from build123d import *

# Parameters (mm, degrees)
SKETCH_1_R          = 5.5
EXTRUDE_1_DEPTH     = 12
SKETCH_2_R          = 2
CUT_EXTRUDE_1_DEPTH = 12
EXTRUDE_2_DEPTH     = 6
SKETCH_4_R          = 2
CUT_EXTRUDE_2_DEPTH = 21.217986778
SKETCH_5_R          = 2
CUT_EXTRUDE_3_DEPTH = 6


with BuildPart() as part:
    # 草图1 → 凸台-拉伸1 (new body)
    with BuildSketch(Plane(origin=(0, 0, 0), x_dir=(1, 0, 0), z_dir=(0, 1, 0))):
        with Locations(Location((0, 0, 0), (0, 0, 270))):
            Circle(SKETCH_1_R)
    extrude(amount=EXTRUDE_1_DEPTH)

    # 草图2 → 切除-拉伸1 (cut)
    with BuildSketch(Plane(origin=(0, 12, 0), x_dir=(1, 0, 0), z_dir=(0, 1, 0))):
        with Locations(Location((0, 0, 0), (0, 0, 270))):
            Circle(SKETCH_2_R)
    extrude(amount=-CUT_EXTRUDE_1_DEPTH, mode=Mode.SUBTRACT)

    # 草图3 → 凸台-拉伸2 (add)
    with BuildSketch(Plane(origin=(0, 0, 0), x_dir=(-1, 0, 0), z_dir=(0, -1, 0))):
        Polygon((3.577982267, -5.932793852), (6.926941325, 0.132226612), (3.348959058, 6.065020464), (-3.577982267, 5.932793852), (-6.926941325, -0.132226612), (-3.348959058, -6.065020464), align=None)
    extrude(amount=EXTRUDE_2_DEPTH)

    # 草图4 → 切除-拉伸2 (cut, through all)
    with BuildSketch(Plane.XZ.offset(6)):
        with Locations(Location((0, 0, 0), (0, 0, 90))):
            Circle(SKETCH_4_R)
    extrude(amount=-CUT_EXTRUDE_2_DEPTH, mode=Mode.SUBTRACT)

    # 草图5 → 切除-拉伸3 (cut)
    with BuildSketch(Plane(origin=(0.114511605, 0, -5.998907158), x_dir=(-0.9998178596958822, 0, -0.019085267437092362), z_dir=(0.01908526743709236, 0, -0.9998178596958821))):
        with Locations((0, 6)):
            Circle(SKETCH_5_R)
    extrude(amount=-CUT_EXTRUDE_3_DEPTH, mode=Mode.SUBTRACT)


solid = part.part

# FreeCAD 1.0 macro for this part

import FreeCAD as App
import Part
import Sketcher

V = App.Vector

doc = App.newDocument("Part")
body = doc.addObject("PartDesign::Body", "Body")

sketch1 = body.newObject("Sketcher::SketchObject", "Sketch")
sketch1.AttachmentSupport = (doc.getObject("XZ_Plane"), [""])
sketch1.MapMode = "FlatFace"
sketch1.addGeometry(Part.Circle(V(0, 0, 0), V(0, 0, 1), 5.5), False)
sketch1.addConstraint([
    Sketcher.Constraint("Coincident", 0, 3, -1, 1),
    Sketcher.Constraint("Diameter", 0, 11.0),
])
pad1 = body.newObject("PartDesign::Pad", "Pad")
pad1.Profile = sketch1
pad1.Length = 12
pad1.Reversed = True

sketch2 = body.newObject("Sketcher::SketchObject", "Sketch001")
sketch2.AttachmentSupport = (doc.getObject("XZ_Plane"), [""])
sketch2.MapMode = "FlatFace"
sketch2.AttachmentOffset = App.Placement(V(0, 0, -12), App.Rotation())
sketch2.addGeometry(Part.Circle(V(0, 0, 0), V(0, 0, 1), 2), False)
sketch2.addConstraint([
    Sketcher.Constraint("Coincident", 0, 3, -1, 1),
    Sketcher.Constraint("Diameter", 0, 4.0),
])
pocket1 = body.newObject("PartDesign::Pocket", "Pocket")
pocket1.Profile = sketch2
pocket1.Length = 12
pocket1.Reversed = True

sketch3 = body.newObject("Sketcher::SketchObject", "Sketch002")
sketch3.AttachmentSupport = (doc.getObject("XZ_Plane"), [""])
sketch3.MapMode = "FlatFace"
sketch3.addGeometry([
    Part.LineSegment(V(-3.577982, 5.932794, 0), V(-6.926941, -0.132227, 0)),
    Part.LineSegment(V(-6.926941, -0.132227, 0), V(-3.348959, -6.06502, 0)),
    Part.LineSegment(V(-3.348959, -6.06502, 0), V(3.577982, -5.932794, 0)),
    Part.LineSegment(V(3.577982, -5.932794, 0), V(6.926941, 0.132227, 0)),
    Part.LineSegment(V(6.926941, 0.132227, 0), V(3.348959, 6.06502, 0)),
    Part.LineSegment(V(3.348959, 6.06502, 0), V(-3.577982, 5.932794, 0)),
], False)
sketch3.addConstraint([
    Sketcher.Constraint("Coincident", 0, 2, 1, 1),
    Sketcher.Constraint("Coincident", 1, 2, 2, 1),
    Sketcher.Constraint("Coincident", 2, 2, 3, 1),
    Sketcher.Constraint("Coincident", 3, 2, 4, 1),
    Sketcher.Constraint("Coincident", 4, 2, 5, 1),
    Sketcher.Constraint("Coincident", 5, 2, 0, 1),
    Sketcher.Constraint("Symmetric", 0, 2, 3, 2, -1, 1),
    Sketcher.Constraint("Symmetric", 1, 2, 4, 2, -1, 1),
    Sketcher.Constraint("Symmetric", 2, 2, 5, 2, -1, 1),
    Sketcher.Constraint("Equal", 0, 1),
    Sketcher.Constraint("Equal", 1, 2),
    Sketcher.Constraint("DistanceX", 1, 2, 3, 2, 10.2759),
    Sketcher.Constraint("DistanceX", 0, 2, -1, 1, 6.926941),
    Sketcher.Constraint("DistanceY", 1, 2, -1, 1, 6.06502),
    Sketcher.Constraint("DistanceX", 1, 2, 2, 2, 6.926941),
])
pad2 = body.newObject("PartDesign::Pad", "Pad001")
pad2.Profile = sketch3
pad2.Length = 6

sketch4 = body.newObject("Sketcher::SketchObject", "Sketch003")
sketch4.AttachmentSupport = (doc.getObject("XZ_Plane"), [""])
sketch4.MapMode = "FlatFace"
sketch4.AttachmentOffset = App.Placement(V(0, 0, 6), App.Rotation())
sketch4.addGeometry(Part.Circle(V(0, 0, 0), V(0, 0, 1), 2), False)
sketch4.addConstraint([
    Sketcher.Constraint("Coincident", 0, 3, -1, 1),
    Sketcher.Constraint("Diameter", 0, 4.0),
])
pocket2 = body.newObject("PartDesign::Pocket", "Pocket001")
pocket2.Profile = sketch4
pocket2.Type = "ThroughAll"

sketch5 = body.newObject("Sketcher::SketchObject", "Sketch004")
sketch5.Placement = App.Placement(V(0.114512, 0, -5.998907), App.Rotation(V(-0.99981786, 0, -0.019085267), V(0, 1.000000001, 0), V(0.019085267, 0, -0.99981786), "ZXY"))
sketch5.addGeometry(Part.Circle(V(0, 6, 0), V(0, 0, 1), 2), False)
sketch5.addConstraint([
    Sketcher.Constraint("PointOnObject", 0, 3, -2),
    Sketcher.Constraint("Diameter", 0, 4.0),
    Sketcher.Constraint("DistanceY", -1, 1, 0, 3, 6.0),
])
pocket3 = body.newObject("PartDesign::Pocket", "Pocket002")
pocket3.Profile = sketch5
pocket3.Length = 6

doc.recompute()
